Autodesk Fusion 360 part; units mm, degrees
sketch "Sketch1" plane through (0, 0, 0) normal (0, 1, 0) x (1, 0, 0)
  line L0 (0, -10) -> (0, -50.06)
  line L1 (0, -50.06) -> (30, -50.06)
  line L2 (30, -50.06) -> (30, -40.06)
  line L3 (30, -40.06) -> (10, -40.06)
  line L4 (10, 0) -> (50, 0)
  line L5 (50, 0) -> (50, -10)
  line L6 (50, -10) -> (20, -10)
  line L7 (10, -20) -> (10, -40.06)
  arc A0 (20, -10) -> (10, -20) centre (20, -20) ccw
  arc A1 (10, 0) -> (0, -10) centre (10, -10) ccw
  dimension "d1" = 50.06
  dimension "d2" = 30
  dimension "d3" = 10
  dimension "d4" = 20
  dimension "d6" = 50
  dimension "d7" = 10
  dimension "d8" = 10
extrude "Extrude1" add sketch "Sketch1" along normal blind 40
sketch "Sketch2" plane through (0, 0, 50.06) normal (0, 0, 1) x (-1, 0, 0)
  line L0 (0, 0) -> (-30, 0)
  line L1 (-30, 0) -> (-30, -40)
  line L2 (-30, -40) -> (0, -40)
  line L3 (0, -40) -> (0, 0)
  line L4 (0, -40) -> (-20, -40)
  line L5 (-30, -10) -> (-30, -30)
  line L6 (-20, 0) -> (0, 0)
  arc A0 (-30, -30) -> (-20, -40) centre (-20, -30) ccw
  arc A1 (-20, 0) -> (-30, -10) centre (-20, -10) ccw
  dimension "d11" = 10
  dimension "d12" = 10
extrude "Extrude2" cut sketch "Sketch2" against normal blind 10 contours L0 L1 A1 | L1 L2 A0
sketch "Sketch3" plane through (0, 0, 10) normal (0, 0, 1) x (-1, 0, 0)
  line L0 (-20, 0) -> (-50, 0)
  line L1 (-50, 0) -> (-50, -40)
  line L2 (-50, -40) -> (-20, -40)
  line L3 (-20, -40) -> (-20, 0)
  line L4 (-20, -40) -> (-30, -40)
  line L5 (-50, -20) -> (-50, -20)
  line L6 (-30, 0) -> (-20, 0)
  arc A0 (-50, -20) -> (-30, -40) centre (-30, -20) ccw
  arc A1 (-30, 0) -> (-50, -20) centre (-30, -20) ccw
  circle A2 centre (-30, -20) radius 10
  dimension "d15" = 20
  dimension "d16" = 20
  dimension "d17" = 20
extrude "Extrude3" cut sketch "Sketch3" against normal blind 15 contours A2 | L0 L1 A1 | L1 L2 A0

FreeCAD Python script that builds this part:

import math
import FreeCAD as App
import Part
import Sketcher

doc = App.newDocument("Part")
params = doc.addObject("Spreadsheet::Sheet", "Params")
for row, (alias, value) in enumerate([
    ("sketch1_radius", "10 mm"),
    ("sketch1_width", "30 mm"),
    ("pad1_length", "40 mm"),
    ("sketch2_radius", "10 mm"),
    ("pocket1_length", "10 mm"),
    ("sketch3_diameter", "20 mm"),
    ("sketch3_radius", "20 mm"),
    ("pocket2_length", "15 mm"),
], start=1):
    params.set(f"A{row}", alias)
    params.set(f"B{row}", "=" + value)
    params.setAlias(f"B{row}", alias)

body = doc.addObject("PartDesign::Body", "Body")

# Sketch on XZ plane
sketch1 = body.newObject("Sketcher::SketchObject", "Sketch")
sketch1.AttachmentSupport = (doc.getObject("XZ_Plane"), [""])
sketch1.MapMode = "FlatFace"
sketch1.addGeometry([
    Part.ArcOfCircle(Part.Circle(App.Vector(10, 10, 0), App.Vector(0, 0, 1), 10), math.radians(180), math.radians(270)),  # 0
    Part.LineSegment(App.Vector(0, 10, 0), App.Vector(0, 50, 0)),  # 1
    Part.LineSegment(App.Vector(0, 50, 0), App.Vector(30, 50, 0)),  # 2
    Part.LineSegment(App.Vector(30, 50, 0), App.Vector(30, 40, 0)),  # 3
    Part.LineSegment(App.Vector(30, 40, 0), App.Vector(10, 40, 0)),  # 4
    Part.LineSegment(App.Vector(10, 40, 0), App.Vector(10, 20, 0)),  # 5
    Part.ArcOfCircle(Part.Circle(App.Vector(20, 20, 0), App.Vector(0, 0, 1), 10), math.radians(180), math.radians(270)),  # 6
    Part.LineSegment(App.Vector(20, 10, 0), App.Vector(50, 10, 0)),  # 7
    Part.LineSegment(App.Vector(50, 10, 0), App.Vector(50, 0, 0)),  # 8
    Part.LineSegment(App.Vector(50, 0, 0), App.Vector(10, 0, 0)),  # 9
], False)
sketch1.addConstraint([
    Sketcher.Constraint("Tangent", 0, 1, 1, 1),
    Sketcher.Constraint("Coincident", 1, 2, 2, 1),
    Sketcher.Constraint("Coincident", 2, 2, 3, 1),
    Sketcher.Constraint("Coincident", 3, 2, 4, 1),
    Sketcher.Constraint("Coincident", 4, 2, 5, 1),
    Sketcher.Constraint("Tangent", 5, 2, 6, 1),
    Sketcher.Constraint("Tangent", 6, 2, 7, 1),
    Sketcher.Constraint("Coincident", 7, 2, 8, 1),
    Sketcher.Constraint("Coincident", 8, 2, 9, 1),
    Sketcher.Constraint("Tangent", 9, 2, 0, 2),
    Sketcher.Constraint("Vertical", 1),
    Sketcher.Constraint("Horizontal", 2),
    Sketcher.Constraint("Vertical", 3),
    Sketcher.Constraint("Horizontal", 4),
    Sketcher.Constraint("Vertical", 5),
    Sketcher.Constraint("Horizontal", 7),
    Sketcher.Constraint("Vertical", 8),
    Sketcher.Constraint("Horizontal", 9),
    Sketcher.Constraint("Equal", 0, 6),
    Sketcher.Constraint("PointOnObject", 0, 1, -2),
    Sketcher.Constraint("PointOnObject", 8, 2, -1),
    Sketcher.Constraint("Horizontal", 0, 1, 6, 2),
    Sketcher.Constraint("Vertical", 0, 3, 4, 2),
    Sketcher.Constraint("Equal", 2, 7),
    Sketcher.Constraint("Equal", 3, 8),
    Sketcher.Constraint("Radius", 0, 10.0),
    Sketcher.Constraint("DistanceX", 2, 1, 2, 2, 30.0),
    Sketcher.Constraint("DistanceY", -1, 1, 1, 2, 50.06),
])
sketch1.setExpression("Constraints[25]", "Params.sketch1_radius")
sketch1.setExpression("Constraints[26]", "Params.sketch1_width")
pad1 = body.newObject("PartDesign::Pad", "Pad")
pad1.Profile = sketch1
pad1.setExpression("Length", "Params.pad1_length")
pad1.Reversed = True

# Sketch on XY plane
sketch2 = body.newObject("Sketcher::SketchObject", "Sketch001")
sketch2.AttachmentSupport = (doc.getObject("XY_Plane"), [""])
sketch2.MapMode = "FlatFace"
sketch2.AttachmentOffset = App.Placement(App.Vector(0, 0, 50.06), App.Rotation())
sketch2.addGeometry([
    Part.ArcOfCircle(Part.Circle(App.Vector(20, 10, 0), App.Vector(0, 0, 1), 10), math.radians(-90), math.radians(0)),  # 0
    Part.LineSegment(App.Vector(20, 0, 0), App.Vector(30, 0, 0)),  # 1
    Part.LineSegment(App.Vector(30, 0, 0), App.Vector(30, 10, 0)),  # 2
    Part.LineSegment(App.Vector(30, 40, 0), App.Vector(20, 40, 0)),  # 3
    Part.ArcOfCircle(Part.Circle(App.Vector(20, 30, 0), App.Vector(0, 0, 1), 10), math.radians(0), math.radians(90)),  # 4
    Part.LineSegment(App.Vector(30, 30, 0), App.Vector(30, 40, 0)),  # 5
], False)
sketch2.addConstraint([
    Sketcher.Constraint("Tangent", 0, 1, 1, 1),
    Sketcher.Constraint("Coincident", 1, 2, 2, 1),
    Sketcher.Constraint("Tangent", 2, 2, 0, 2),
    Sketcher.Constraint("Tangent", 3, 2, 4, 2),
    Sketcher.Constraint("Tangent", 4, 1, 5, 1),
    Sketcher.Constraint("Coincident", 5, 2, 3, 1),
    Sketcher.Constraint("Horizontal", 1),
    Sketcher.Constraint("Vertical", 2),
    Sketcher.Constraint("Horizontal", 3),
    Sketcher.Constraint("Vertical", 5),
    Sketcher.Constraint("Equal", 0, 4),
    Sketcher.Constraint("PointOnObject", 0, 1, -1),
    Sketcher.Constraint("Vertical", 0, 3, 4, 3),
    Sketcher.Constraint("Radius", 0, 10.0),
    Sketcher.Constraint("DistanceX", -1, 1, 0, 3, 20.0),
    Sketcher.Constraint("DistanceY", -1, 1, 4, 3, 30.0),
])
sketch2.setExpression("Constraints[13]", "Params.sketch2_radius")
pocket1 = body.newObject("PartDesign::Pocket", "Pocket")
pocket1.Profile = sketch2
pocket1.setExpression("Length", "Params.pocket1_length")

# Sketch on XY plane
sketch3 = body.newObject("Sketcher::SketchObject", "Sketch002")
sketch3.AttachmentSupport = (doc.getObject("XY_Plane"), [""])
sketch3.MapMode = "FlatFace"
sketch3.AttachmentOffset = App.Placement(App.Vector(0, 0, 10), App.Rotation())
sketch3.addGeometry([
    Part.Circle(App.Vector(30, 20, 0), App.Vector(0, 0, 1), 10),  # 0
    Part.ArcOfCircle(Part.Circle(App.Vector(30, 20, 0), App.Vector(0, 0, 1), 20), math.radians(-90), math.radians(0)),  # 1
    Part.LineSegment(App.Vector(30, 0, 0), App.Vector(50, 0, 0)),  # 2
    Part.LineSegment(App.Vector(50, 0, 0), App.Vector(50, 20, 0)),  # 3
    Part.ArcOfCircle(Part.Circle(App.Vector(30, 20, 0), App.Vector(0, 0, 1), 20), math.radians(0), math.radians(90)),  # 4
    Part.LineSegment(App.Vector(50, 20, 0), App.Vector(50, 40, 0)),  # 5
    Part.LineSegment(App.Vector(50, 40, 0), App.Vector(30, 40, 0)),  # 6
], False)
sketch3.addConstraint([
    Sketcher.Constraint("Tangent", 1, 1, 2, 1),
    Sketcher.Constraint("Coincident", 2, 2, 3, 1),
    Sketcher.Constraint("Tangent", 3, 2, 1, 2),
    Sketcher.Constraint("Tangent", 4, 1, 5, 1),
    Sketcher.Constraint("Coincident", 5, 2, 6, 1),
    Sketcher.Constraint("Tangent", 6, 2, 4, 2),
    Sketcher.Constraint("Horizontal", 2),
    Sketcher.Constraint("Vertical", 3),
    Sketcher.Constraint("Vertical", 5),
    Sketcher.Constraint("Horizontal", 6),
    Sketcher.Constraint("Coincident", 1, 3, 0, 3),
    Sketcher.Constraint("Coincident", 4, 3, 0, 3),
    Sketcher.Constraint("Equal", 1, 4),
    Sketcher.Constraint("PointOnObject", 1, 1, -1),
    Sketcher.Constraint("Diameter", 0, 20.0),
    Sketcher.Constraint("Radius", 1, 20.0),
    Sketcher.Constraint("DistanceX", -1, 1, 0, 3, 30.0),
])
sketch3.setExpression("Constraints[14]", "Params.sketch3_diameter")
sketch3.setExpression("Constraints[15]", "Params.sketch3_radius")
pocket2 = body.newObject("PartDesign::Pocket", "Pocket001")
pocket2.Profile = sketch3
pocket2.setExpression("Length", "Params.pocket2_length")

doc.recompute()
